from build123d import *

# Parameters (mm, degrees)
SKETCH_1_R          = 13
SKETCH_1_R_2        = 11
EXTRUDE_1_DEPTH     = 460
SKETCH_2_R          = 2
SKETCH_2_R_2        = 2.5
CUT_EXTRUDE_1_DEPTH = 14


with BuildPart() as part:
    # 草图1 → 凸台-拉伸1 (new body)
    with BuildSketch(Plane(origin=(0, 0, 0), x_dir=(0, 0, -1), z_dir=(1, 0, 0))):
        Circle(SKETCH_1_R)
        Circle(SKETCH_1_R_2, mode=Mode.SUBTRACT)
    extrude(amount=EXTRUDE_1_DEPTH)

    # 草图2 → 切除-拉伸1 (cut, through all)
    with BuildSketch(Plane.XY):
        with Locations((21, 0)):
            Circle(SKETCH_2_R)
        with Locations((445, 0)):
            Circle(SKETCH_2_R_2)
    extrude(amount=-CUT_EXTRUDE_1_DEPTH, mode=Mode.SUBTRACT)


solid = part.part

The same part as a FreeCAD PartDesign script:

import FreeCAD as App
import Part
import Sketcher

V = App.Vector
Q = App.Units.Quantity

doc = App.newDocument("Part")
body = doc.addObject("PartDesign::Body", "Body")

sketch1 = body.newObject("Sketcher::SketchObject", "Sketch")
sketch1.AttachmentSupport = (doc.getObject("YZ_Plane"), [""])
sketch1.MapMode = "FlatFace"
sketch1.addGeometry(Part.Circle(V(0, 0, 0), V(0, 0, 1), 13), False)
sketch1.addGeometry(Part.Circle(V(0, 0, 0), V(0, 0, 1), 11), False)
sketch1.addConstraint(Sketcher.Constraint("Coincident", 0, 3, -1, 1))
sketch1.addConstraint(Sketcher.Constraint("Coincident", 1, 3, -1, 1))
sketch1.addConstraint(Sketcher.Constraint("Diameter", 0, Q("26 mm")))
sketch1.addConstraint(Sketcher.Constraint("Diameter", 1, Q("22 mm")))
pad1 = body.newObject("PartDesign::Pad", "Pad")
pad1.Profile = sketch1
pad1.Length = 460

sketch2 = body.newObject("Sketcher::SketchObject", "Sketch001")
sketch2.AttachmentSupport = (doc.getObject("XY_Plane"), [""])
sketch2.MapMode = "FlatFace"
sketch2.addGeometry(Part.Circle(V(21, 0, 0), V(0, 0, 1), 2), False)
sketch2.addGeometry(Part.Circle(V(445, 0, 0), V(0, 0, 1), 2.5), False)
sketch2.addConstraint(Sketcher.Constraint("PointOnObject", 0, 3, -1))
sketch2.addConstraint(Sketcher.Constraint("PointOnObject", 1, 3, -1))
sketch2.addConstraint(Sketcher.Constraint("Diameter", 0, Q("4 mm")))
sketch2.addConstraint(Sketcher.Constraint("Diameter", 1, Q("5 mm")))
sketch2.addConstraint(Sketcher.Constraint("DistanceX", -1, 1, 0, 3, Q("21 mm")))
sketch2.addConstraint(Sketcher.Constraint("DistanceX", -1, 1, 1, 3, Q("445 mm")))
pocket1 = body.newObject("PartDesign::Pocket", "Pocket")
pocket1.Profile = sketch2
pocket1.Type = "ThroughAll"

doc.recompute()
